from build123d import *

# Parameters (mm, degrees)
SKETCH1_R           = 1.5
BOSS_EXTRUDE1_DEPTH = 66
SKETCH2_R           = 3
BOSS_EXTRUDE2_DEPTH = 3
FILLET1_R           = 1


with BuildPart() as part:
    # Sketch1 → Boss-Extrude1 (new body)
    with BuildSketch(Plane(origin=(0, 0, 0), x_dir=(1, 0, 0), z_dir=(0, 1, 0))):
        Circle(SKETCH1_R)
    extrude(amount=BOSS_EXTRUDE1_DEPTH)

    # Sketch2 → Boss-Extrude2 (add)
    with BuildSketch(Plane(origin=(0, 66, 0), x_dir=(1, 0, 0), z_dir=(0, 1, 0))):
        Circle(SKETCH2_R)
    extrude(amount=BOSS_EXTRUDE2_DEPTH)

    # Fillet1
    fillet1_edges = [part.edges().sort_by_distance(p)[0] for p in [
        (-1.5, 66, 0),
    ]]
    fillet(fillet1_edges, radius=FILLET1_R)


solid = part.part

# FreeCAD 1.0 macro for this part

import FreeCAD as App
import Part
import Sketcher
from FreeCAD import Vector
Q = App.Units.Quantity


def edges_at(feature, points):
    """Names of the edges that pass closest to the given points."""
    edges = feature.Shape.Edges
    near = lambda p: min(range(len(edges)), key=lambda i: edges[i].distToShape(Part.Vertex(*p))[0])
    return sorted({f"Edge{near(p) + 1}" for p in points})

doc = App.newDocument("Part")
body = doc.addObject("PartDesign::Body", "Body")

# Sketch on XZ plane
sketch1 = doc.addObject("Sketcher::SketchObject", "Sketch")
body.addObject(sketch1)
sketch1.AttachmentSupport = (doc.XZ_Plane, [""])
sketch1.MapMode = "FlatFace"
sketch1.addGeometry(Part.Circle(Vector(0, 0, 0), Vector(0, 0, 1), 1.5), False)
sketch1.addConstraint(Sketcher.Constraint("Coincident", 0, 3, -1, 1))
sketch1.addConstraint(Sketcher.Constraint("Diameter", 0, Q("3 mm")))
pad1 = doc.addObject("PartDesign::Pad", "Pad")
body.addObject(pad1)
pad1.Profile = sketch1
pad1.Length = 66
pad1.Reversed = True

# Sketch on XZ plane
sketch2 = doc.addObject("Sketcher::SketchObject", "Sketch001")
body.addObject(sketch2)
sketch2.AttachmentSupport = (doc.XZ_Plane, [""])
sketch2.MapMode = "FlatFace"
sketch2.AttachmentOffset = App.Placement(Vector(0, 0, -66), App.Rotation())
sketch2.addGeometry(Part.Circle(Vector(0, 0, 0), Vector(0, 0, 1), 3), False)
sketch2.addConstraint(Sketcher.Constraint("Coincident", 0, 3, -1, 1))
sketch2.addConstraint(Sketcher.Constraint("Diameter", 0, Q("6 mm")))
pad2 = doc.addObject("PartDesign::Pad", "Pad001")
body.addObject(pad2)
pad2.Profile = sketch2
pad2.Length = 3
pad2.Reversed = True
doc.recompute()

fillet = doc.addObject("PartDesign::Fillet", "Fillet")
body.addObject(fillet)
fillet.Base = (pad2, edges_at(pad2, [(-1.5, 66, 0)]))
fillet.Radius = 1

doc.recompute()
